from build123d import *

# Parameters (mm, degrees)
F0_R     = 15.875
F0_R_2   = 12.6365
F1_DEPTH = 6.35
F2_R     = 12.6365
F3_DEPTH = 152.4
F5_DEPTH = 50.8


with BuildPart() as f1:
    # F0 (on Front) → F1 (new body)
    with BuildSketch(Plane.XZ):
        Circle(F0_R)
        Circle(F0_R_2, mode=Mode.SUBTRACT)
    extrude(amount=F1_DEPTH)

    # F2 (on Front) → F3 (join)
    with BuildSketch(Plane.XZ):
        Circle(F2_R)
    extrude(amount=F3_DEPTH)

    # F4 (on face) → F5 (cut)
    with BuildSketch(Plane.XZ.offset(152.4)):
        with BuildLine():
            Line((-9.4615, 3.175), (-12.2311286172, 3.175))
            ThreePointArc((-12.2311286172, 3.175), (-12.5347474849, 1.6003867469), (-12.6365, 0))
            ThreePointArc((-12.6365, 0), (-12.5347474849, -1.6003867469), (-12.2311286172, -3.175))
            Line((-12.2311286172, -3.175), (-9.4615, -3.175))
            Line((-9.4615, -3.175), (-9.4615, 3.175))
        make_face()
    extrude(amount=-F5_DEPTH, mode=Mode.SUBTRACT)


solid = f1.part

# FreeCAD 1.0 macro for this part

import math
import FreeCAD as App
import Part
import Sketcher
Q = App.Units.Quantity

doc = App.newDocument("Part")
body = doc.addObject("PartDesign::Body", "Body")

sketch1 = doc.addObject("Sketcher::SketchObject", "Sketch")
body.addObject(sketch1)
sketch1.AttachmentSupport = (doc.XZ_Plane, [""])
sketch1.MapMode = "FlatFace"
sketch1.addGeometry([
    Part.Circle(App.Vector(0, 0, 0), App.Vector(0, 0, 1), 16),
    Part.Circle(App.Vector(0, 0, 0), App.Vector(0, 0, 1), 13),
], False)
sketch1.addConstraint([
    Sketcher.Constraint("Coincident", 0, 3, -1, 1),
    Sketcher.Constraint("Coincident", 1, 3, -1, 1),
    Sketcher.Constraint("Diameter", 0, Q("1.25 in")),
    Sketcher.Constraint("Diameter", 1, Q("0.995 in")),
])
pad1 = doc.addObject("PartDesign::Pad", "Pad")
body.addObject(pad1)
pad1.Profile = sketch1
pad1.Length = Q("0.25 in")

sketch2 = doc.addObject("Sketcher::SketchObject", "Sketch001")
body.addObject(sketch2)
sketch2.AttachmentSupport = (doc.XZ_Plane, [""])
sketch2.MapMode = "FlatFace"
sketch2.addGeometry(Part.Circle(App.Vector(0, 0, 0), App.Vector(0, 0, 1), 13), False)
sketch2.addConstraint([
    Sketcher.Constraint("Coincident", 0, 3, -1, 1),
    Sketcher.Constraint("Diameter", 0, Q("0.995 in")),
])
pad2 = doc.addObject("PartDesign::Pad", "Pad001")
body.addObject(pad2)
pad2.Profile = sketch2
pad2.Length = Q("6 in")

sketch3 = doc.addObject("Sketcher::SketchObject", "Sketch002")
body.addObject(sketch3)
sketch3.AttachmentSupport = (doc.XZ_Plane, [""])
sketch3.MapMode = "FlatFace"
sketch3.AttachmentOffset = App.Placement(App.Vector(0, 0, 6 * 25.4), App.Rotation())
sketch3.addGeometry([
    Part.LineSegment(App.Vector(-9.5, 3.2, 0), App.Vector(-12.2, 3.2, 0)),
    Part.ArcOfCircle(Part.Circle(App.Vector(0, 0, 0), App.Vector(0, 0, 1), 12.6), math.radians(165.45), math.radians(180)),
    Part.ArcOfCircle(Part.Circle(App.Vector(0, 0, 0), App.Vector(0, 0, 1), 12.6), math.radians(180), math.radians(194.55)),
    Part.LineSegment(App.Vector(-12.2, -3.2, 0), App.Vector(-9.5, -3.2, 0)),
    Part.LineSegment(App.Vector(-9.5, -3.2, 0), App.Vector(-9.5, 3.2, 0)),
], False)
sketch3.addConstraint([
    Sketcher.Constraint("Coincident", 0, 2, 1, 1),
    Sketcher.Constraint("Tangent", 1, 2, 2, 1),
    Sketcher.Constraint("Coincident", 2, 2, 3, 1),
    Sketcher.Constraint("Coincident", 3, 2, 4, 1),
    Sketcher.Constraint("Coincident", 4, 2, 0, 1),
    Sketcher.Constraint("Horizontal", 0),
    Sketcher.Constraint("Horizontal", 3),
    Sketcher.Constraint("Vertical", 4),
    Sketcher.Constraint("Coincident", 1, 3, -1, 1),
    Sketcher.Constraint("Equal", 1, 2),
    Sketcher.Constraint("PointOnObject", 1, 2, -1),
    Sketcher.Constraint("Vertical", 0, 2, 2, 2),
    Sketcher.Constraint("DistanceY", 4, 1, 4, 2, Q("0.25 in")),
    Sketcher.Constraint("Radius", 1, Q("0.4975 in")),
    Sketcher.Constraint("DistanceX", 1, 2, 3, 2, Q("0.125 in")),
])
pocket1 = doc.addObject("PartDesign::Pocket", "Pocket")
body.addObject(pocket1)
pocket1.Profile = sketch3
pocket1.Length = Q("2 in")

doc.recompute()
